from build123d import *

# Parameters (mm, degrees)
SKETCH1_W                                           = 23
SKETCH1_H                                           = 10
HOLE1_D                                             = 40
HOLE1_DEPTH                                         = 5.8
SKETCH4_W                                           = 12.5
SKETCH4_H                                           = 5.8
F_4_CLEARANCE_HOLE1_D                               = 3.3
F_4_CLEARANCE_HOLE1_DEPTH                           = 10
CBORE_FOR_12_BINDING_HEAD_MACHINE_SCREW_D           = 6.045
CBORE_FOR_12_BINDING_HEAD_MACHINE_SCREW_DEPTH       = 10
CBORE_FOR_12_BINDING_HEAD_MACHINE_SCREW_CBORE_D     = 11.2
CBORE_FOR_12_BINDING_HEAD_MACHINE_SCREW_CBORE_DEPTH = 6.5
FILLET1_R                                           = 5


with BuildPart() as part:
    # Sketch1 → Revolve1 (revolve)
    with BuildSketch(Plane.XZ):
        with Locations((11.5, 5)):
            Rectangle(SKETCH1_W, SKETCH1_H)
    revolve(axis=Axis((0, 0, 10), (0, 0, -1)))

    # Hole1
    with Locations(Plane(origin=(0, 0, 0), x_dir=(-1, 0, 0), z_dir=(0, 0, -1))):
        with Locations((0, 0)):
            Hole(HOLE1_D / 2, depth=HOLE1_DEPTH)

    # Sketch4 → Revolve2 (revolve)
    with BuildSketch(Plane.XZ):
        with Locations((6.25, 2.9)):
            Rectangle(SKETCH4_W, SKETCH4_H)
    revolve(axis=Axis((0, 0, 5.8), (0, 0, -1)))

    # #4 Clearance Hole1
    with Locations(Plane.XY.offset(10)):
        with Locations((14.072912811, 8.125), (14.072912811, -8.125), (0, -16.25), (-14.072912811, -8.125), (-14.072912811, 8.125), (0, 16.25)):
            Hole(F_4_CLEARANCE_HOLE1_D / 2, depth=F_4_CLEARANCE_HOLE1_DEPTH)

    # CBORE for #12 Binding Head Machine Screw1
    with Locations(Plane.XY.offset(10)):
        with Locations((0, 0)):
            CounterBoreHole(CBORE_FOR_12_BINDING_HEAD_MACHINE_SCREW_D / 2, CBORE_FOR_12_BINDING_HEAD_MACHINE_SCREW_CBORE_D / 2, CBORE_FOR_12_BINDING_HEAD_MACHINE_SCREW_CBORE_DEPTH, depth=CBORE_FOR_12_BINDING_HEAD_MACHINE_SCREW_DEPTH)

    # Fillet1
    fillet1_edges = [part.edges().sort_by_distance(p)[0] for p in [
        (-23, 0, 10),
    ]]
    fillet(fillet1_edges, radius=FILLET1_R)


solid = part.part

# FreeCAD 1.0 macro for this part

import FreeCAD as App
import Part
import Sketcher
from FreeCAD import Vector
Q = App.Units.Quantity


def edges_at(feature, points):
    """Names of the edges that pass closest to the given points."""
    edges = feature.Shape.Edges
    near = lambda p: min(range(len(edges)), key=lambda i: edges[i].distToShape(Part.Vertex(*p))[0])
    return sorted({f"Edge{near(p) + 1}" for p in points})

doc = App.newDocument("Part")
body = doc.addObject("PartDesign::Body", "Body")

# Sketch on XZ plane
sketch1 = body.newObject("Sketcher::SketchObject", "Sketch")
sketch1.AttachmentSupport = (doc.getObject("XZ_Plane"), [""])
sketch1.MapMode = "FlatFace"
sketch1.addGeometry(Part.LineSegment(Vector(0, 10, 0), Vector(0, 0, 0)), False)
sketch1.addGeometry(Part.LineSegment(Vector(0, 0, 0), Vector(23, 0, 0)), False)
sketch1.addGeometry(Part.LineSegment(Vector(23, 0, 0), Vector(23, 10, 0)), False)
sketch1.addGeometry(Part.LineSegment(Vector(23, 10, 0), Vector(0, 10, 0)), False)
sketch1.addConstraint(Sketcher.Constraint("Coincident", 0, 2, 1, 1))
sketch1.addConstraint(Sketcher.Constraint("Coincident", 1, 2, 2, 1))
sketch1.addConstraint(Sketcher.Constraint("Coincident", 2, 2, 3, 1))
sketch1.addConstraint(Sketcher.Constraint("Coincident", 3, 2, 0, 1))
sketch1.addConstraint(Sketcher.Constraint("Vertical", 0))
sketch1.addConstraint(Sketcher.Constraint("Horizontal", 1))
sketch1.addConstraint(Sketcher.Constraint("Vertical", 2))
sketch1.addConstraint(Sketcher.Constraint("Horizontal", 3))
sketch1.addConstraint(Sketcher.Constraint("Coincident", 0, 2, -1, 1))
sketch1.addConstraint(Sketcher.Constraint("DistanceX", 1, 1, 1, 2, Q("23 mm")))
sketch1.addConstraint(Sketcher.Constraint("DistanceY", 0, 2, 0, 1, Q("10 mm")))
revolution = body.newObject("PartDesign::Revolution", "Revolution")
revolution.Profile = sketch1
revolution.ReferenceAxis = (sketch1, ["V_Axis"])
revolution.Angle = 360

# Sketch on XY plane
sketch2 = body.newObject("Sketcher::SketchObject", "Sketch001")
sketch2.AttachmentSupport = (doc.getObject("XY_Plane"), [""])
sketch2.MapMode = "FlatFace"
sketch2.addGeometry(Part.Circle(Vector(0, 0, 0), Vector(0, 0, 1), 20), False)
sketch2.addConstraint(Sketcher.Constraint("Coincident", 0, 3, -1, 1))
sketch2.addConstraint(Sketcher.Constraint("Diameter", 0, Q("40 mm")))
doc.recompute()
hole = body.newObject("PartDesign::Hole", "Hole")
hole.Profile = sketch2
hole.ThreadType = "None"
hole.Diameter = 40
hole.DepthType = "Dimension"
hole.Depth = 5.8
hole.DrillPoint = "Flat"
hole.Reversed = True

# Sketch on XZ plane
sketch3 = body.newObject("Sketcher::SketchObject", "Sketch002")
sketch3.AttachmentSupport = (doc.getObject("XZ_Plane"), [""])
sketch3.MapMode = "FlatFace"
sketch3.addGeometry(Part.LineSegment(Vector(0, 5.8, 0), Vector(0, 0, 0)), False)
sketch3.addGeometry(Part.LineSegment(Vector(0, 0, 0), Vector(12.5, 0, 0)), False)
sketch3.addGeometry(Part.LineSegment(Vector(12.5, 0, 0), Vector(12.5, 5.8, 0)), False)
sketch3.addGeometry(Part.LineSegment(Vector(12.5, 5.8, 0), Vector(0, 5.8, 0)), False)
sketch3.addConstraint(Sketcher.Constraint("Coincident", 0, 2, 1, 1))
sketch3.addConstraint(Sketcher.Constraint("Coincident", 1, 2, 2, 1))
sketch3.addConstraint(Sketcher.Constraint("Coincident", 2, 2, 3, 1))
sketch3.addConstraint(Sketcher.Constraint("Coincident", 3, 2, 0, 1))
sketch3.addConstraint(Sketcher.Constraint("Vertical", 0))
sketch3.addConstraint(Sketcher.Constraint("Horizontal", 1))
sketch3.addConstraint(Sketcher.Constraint("Vertical", 2))
sketch3.addConstraint(Sketcher.Constraint("Horizontal", 3))
sketch3.addConstraint(Sketcher.Constraint("Coincident", 0, 2, -1, 1))
sketch3.addConstraint(Sketcher.Constraint("DistanceX", 1, 1, 1, 2, Q("12.5 mm")))
sketch3.addConstraint(Sketcher.Constraint("DistanceY", 0, 2, 0, 1, Q("5.8 mm")))
revolution2 = body.newObject("PartDesign::Revolution", "Revolution001")
revolution2.Profile = sketch3
revolution2.ReferenceAxis = (sketch3, ["V_Axis"])
revolution2.Angle = 360

# Sketch on XY plane
sketch4 = body.newObject("Sketcher::SketchObject", "Sketch003")
sketch4.AttachmentSupport = (doc.getObject("XY_Plane"), [""])
sketch4.MapMode = "FlatFace"
sketch4.AttachmentOffset = App.Placement(Vector(0, 0, 10), App.Rotation())
sketch4.addGeometry(Part.Circle(Vector(14.072913, 8.125, 0), Vector(0, 0, 1), 1.65), False)
sketch4.addGeometry(Part.Circle(Vector(14.072913, -8.125, 0), Vector(0, 0, 1), 1.65), False)
sketch4.addGeometry(Part.Circle(Vector(0, -16.25, 0), Vector(0, 0, 1), 1.65), False)
sketch4.addGeometry(Part.Circle(Vector(-14.072913, -8.125, 0), Vector(0, 0, 1), 1.65), False)
sketch4.addGeometry(Part.Circle(Vector(-14.072913, 8.125, 0), Vector(0, 0, 1), 1.65), False)
sketch4.addGeometry(Part.Circle(Vector(0, 16.25, 0), Vector(0, 0, 1), 1.65), False)
sketch4.addConstraint(Sketcher.Constraint("Equal", 0, 1))
sketch4.addConstraint(Sketcher.Constraint("Equal", 1, 2))
sketch4.addConstraint(Sketcher.Constraint("Equal", 2, 3))
sketch4.addConstraint(Sketcher.Constraint("Equal", 3, 4))
sketch4.addConstraint(Sketcher.Constraint("Equal", 4, 5))
sketch4.addConstraint(Sketcher.Constraint("Symmetric", 0, 3, 3, 3, -1, 1))
sketch4.addConstraint(Sketcher.Constraint("Symmetric", 1, 3, 4, 3, -1, 1))
sketch4.addConstraint(Sketcher.Constraint("Symmetric", 2, 3, 5, 3, -1, 1))
sketch4.addConstraint(Sketcher.Constraint("Symmetric", 1, 3, 3, 3, -2))
sketch4.addConstraint(Sketcher.Constraint("PointOnObject", 2, 3, -2))
sketch4.addConstraint(Sketcher.Constraint("Diameter", 0, Q("3.3 mm")))
sketch4.addConstraint(Sketcher.Constraint("DistanceY", 2, 3, 5, 3, Q("32.5 mm")))
sketch4.addConstraint(Sketcher.Constraint("DistanceY", 1, 3, 0, 3, Q("16.25 mm")))
sketch4.addConstraint(Sketcher.Constraint("DistanceX", -1, 1, 0, 3, Q("14.072913 mm")))
doc.recompute()
hole2 = body.newObject("PartDesign::Hole", "Hole001")
hole2.Profile = sketch4
hole2.ThreadType = "None"
hole2.Diameter = 3.3
hole2.DepthType = "Dimension"
hole2.Depth = 10
hole2.DrillPoint = "Flat"

# Sketch on XY plane
sketch5 = body.newObject("Sketcher::SketchObject", "Sketch004")
sketch5.AttachmentSupport = (doc.getObject("XY_Plane"), [""])
sketch5.MapMode = "FlatFace"
sketch5.AttachmentOffset = App.Placement(Vector(0, 0, 10), App.Rotation())
sketch5.addGeometry(Part.Circle(Vector(0, 0, 0), Vector(0, 0, 1), 3.0225), False)
sketch5.addConstraint(Sketcher.Constraint("Coincident", 0, 3, -1, 1))
sketch5.addConstraint(Sketcher.Constraint("Diameter", 0, Q("6.045 mm")))
doc.recompute()
hole3 = body.newObject("PartDesign::Hole", "Hole002")
hole3.Profile = sketch5
hole3.ThreadType = "None"
hole3.Diameter = 6.045
hole3.DepthType = "Dimension"
hole3.Depth = 10
hole3.DrillPoint = "Flat"
hole3.HoleCutType = "Counterbore"
hole3.HoleCutDiameter = 11.2
hole3.HoleCutDepth = 6.5
doc.recompute()

fillet = body.newObject("PartDesign::Fillet", "Fillet")
fillet.Base = (hole3, edges_at(hole3, [(-23, 0, 10)]))
fillet.Radius = 5

doc.recompute()
